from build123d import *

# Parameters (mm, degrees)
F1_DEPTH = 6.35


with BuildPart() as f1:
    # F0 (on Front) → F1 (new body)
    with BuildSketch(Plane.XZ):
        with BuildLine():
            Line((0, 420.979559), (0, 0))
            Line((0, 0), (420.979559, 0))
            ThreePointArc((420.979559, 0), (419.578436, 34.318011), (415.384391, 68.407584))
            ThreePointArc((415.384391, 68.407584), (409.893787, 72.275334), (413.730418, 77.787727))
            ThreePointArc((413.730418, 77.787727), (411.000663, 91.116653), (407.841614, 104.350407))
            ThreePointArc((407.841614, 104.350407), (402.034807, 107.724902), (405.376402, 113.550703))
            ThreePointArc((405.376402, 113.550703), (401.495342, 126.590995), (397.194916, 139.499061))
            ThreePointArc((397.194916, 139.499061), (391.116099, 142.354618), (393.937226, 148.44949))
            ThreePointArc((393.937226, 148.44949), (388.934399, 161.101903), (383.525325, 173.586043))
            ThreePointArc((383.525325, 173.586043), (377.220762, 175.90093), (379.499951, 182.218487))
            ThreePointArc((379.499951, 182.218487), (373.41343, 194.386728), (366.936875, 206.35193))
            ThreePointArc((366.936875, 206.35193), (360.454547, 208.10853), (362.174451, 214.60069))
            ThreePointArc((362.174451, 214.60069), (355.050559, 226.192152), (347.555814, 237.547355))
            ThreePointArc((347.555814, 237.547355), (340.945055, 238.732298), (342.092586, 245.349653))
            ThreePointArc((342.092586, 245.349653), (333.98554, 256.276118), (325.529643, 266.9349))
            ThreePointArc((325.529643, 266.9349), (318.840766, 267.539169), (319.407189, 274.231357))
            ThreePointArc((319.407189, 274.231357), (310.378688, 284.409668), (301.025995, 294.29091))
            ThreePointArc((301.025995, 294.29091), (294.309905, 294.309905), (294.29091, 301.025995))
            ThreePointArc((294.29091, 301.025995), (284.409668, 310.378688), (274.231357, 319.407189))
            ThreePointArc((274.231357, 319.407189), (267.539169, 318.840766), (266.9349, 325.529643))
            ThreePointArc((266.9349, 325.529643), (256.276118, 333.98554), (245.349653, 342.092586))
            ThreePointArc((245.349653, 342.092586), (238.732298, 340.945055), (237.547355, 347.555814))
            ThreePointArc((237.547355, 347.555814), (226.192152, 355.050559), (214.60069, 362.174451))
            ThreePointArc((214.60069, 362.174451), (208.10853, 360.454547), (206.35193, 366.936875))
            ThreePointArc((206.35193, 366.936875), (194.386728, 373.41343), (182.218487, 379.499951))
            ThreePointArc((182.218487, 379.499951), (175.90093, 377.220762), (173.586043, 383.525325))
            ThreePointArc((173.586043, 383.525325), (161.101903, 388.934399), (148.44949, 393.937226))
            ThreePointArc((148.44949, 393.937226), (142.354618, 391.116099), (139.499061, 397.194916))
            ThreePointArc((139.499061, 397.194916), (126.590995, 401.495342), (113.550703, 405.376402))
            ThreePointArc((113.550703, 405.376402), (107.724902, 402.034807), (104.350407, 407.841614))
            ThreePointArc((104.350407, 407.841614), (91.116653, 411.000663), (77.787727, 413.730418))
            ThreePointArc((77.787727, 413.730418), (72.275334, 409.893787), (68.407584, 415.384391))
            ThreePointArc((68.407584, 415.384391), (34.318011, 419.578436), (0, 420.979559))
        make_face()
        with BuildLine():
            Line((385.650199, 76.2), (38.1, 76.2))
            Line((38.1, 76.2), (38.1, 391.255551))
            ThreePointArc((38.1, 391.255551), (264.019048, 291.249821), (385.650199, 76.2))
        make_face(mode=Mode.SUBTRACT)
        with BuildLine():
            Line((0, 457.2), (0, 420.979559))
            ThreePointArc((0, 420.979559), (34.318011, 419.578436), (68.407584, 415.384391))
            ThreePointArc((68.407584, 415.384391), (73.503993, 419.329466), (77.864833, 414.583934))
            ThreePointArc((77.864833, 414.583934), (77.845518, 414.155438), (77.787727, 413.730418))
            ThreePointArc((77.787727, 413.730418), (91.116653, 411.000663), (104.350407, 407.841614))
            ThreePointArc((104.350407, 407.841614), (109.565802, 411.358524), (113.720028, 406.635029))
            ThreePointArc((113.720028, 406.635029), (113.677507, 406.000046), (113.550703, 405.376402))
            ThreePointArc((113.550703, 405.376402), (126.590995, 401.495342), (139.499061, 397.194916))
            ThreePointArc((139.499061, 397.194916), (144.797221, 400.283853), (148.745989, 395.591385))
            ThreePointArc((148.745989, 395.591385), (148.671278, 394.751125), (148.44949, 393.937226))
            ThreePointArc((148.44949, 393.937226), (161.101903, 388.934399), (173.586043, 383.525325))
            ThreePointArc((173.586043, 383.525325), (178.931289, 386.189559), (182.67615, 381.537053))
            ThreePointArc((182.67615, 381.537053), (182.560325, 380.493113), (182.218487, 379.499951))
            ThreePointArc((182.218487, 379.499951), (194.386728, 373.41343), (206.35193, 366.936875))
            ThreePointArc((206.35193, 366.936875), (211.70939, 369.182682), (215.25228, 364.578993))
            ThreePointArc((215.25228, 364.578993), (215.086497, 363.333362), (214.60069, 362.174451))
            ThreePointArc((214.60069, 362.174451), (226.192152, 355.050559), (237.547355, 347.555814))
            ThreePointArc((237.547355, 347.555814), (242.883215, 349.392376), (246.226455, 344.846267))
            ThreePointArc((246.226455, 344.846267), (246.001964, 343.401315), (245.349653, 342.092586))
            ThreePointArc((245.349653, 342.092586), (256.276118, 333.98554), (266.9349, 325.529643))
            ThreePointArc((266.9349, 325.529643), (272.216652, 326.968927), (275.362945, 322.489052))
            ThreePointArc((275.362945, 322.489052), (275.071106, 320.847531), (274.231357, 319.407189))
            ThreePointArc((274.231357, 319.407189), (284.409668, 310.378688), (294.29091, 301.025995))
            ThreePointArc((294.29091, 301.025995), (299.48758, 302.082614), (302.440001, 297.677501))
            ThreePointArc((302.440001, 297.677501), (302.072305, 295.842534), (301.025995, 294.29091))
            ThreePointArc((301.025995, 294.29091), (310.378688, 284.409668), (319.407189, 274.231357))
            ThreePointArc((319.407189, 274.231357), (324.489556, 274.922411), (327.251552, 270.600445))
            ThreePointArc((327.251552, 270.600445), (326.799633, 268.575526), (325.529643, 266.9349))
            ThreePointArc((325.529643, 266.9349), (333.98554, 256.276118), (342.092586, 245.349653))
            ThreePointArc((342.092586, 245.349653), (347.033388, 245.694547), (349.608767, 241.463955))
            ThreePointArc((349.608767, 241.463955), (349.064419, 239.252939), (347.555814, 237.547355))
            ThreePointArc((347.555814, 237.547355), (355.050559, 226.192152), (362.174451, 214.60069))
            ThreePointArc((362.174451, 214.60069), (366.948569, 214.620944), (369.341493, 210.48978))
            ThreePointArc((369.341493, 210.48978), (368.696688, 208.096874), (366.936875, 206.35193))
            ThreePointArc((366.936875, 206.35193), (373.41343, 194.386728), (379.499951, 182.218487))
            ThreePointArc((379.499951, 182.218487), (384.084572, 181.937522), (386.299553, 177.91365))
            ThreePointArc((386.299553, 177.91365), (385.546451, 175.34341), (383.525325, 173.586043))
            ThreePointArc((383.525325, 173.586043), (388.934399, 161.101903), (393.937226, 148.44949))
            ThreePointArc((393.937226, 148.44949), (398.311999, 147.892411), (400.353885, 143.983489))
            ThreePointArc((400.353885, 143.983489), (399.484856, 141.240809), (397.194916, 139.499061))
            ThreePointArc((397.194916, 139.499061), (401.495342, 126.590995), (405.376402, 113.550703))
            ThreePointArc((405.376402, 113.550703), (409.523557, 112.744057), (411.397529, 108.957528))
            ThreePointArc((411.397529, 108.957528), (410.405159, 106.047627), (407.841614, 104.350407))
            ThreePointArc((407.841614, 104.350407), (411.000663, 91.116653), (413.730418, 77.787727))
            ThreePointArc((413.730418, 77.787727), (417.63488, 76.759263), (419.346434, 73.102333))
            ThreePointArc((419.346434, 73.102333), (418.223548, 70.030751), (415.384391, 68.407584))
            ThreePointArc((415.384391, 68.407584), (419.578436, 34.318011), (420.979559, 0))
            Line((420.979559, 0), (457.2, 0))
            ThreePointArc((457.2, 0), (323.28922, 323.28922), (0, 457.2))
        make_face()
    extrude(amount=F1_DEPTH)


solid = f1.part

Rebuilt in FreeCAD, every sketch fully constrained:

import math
import FreeCAD as App
import Part
import Sketcher

V = App.Vector
Q = App.Units.Quantity

doc = App.newDocument("Part")
params = doc.addObject("Spreadsheet::Sheet", "Params")
for row, (alias, value) in enumerate([
    ("sketch1_radius", "18 in"),
    ("sketch1_radius2", "0.1875 in"),
    ("sketch1_radius3", "0.1875 in"),
    ("sketch1_radius4", "0.1874999 in"),
    ("sketch1_radius5", "0.1875 in"),
    ("pad1_length", "0.25 in"),
], start=1):
    params.set(f"A{row}", alias)
    params.set(f"B{row}", "=" + value)
    params.setAlias(f"B{row}", alias)

body = doc.addObject("PartDesign::Body", "Body")

# Sketch on XZ plane
sketch1 = body.newObject("Sketcher::SketchObject", "Sketch")
sketch1.AttachmentSupport = (doc.getObject("XZ_Plane"), [""])
sketch1.MapMode = "FlatFace"
sketch1.addGeometry([
    Part.LineSegment(V(0, 0, 0), V(457.2, 0, 0)),  # 0
    Part.ArcOfCircle(Part.Circle(V(-0.000001, -0.000001, 0), V(0, 0, 1), 457.200001), math.radians(0), math.radians(90)),  # 1
    Part.LineSegment(V(0, 457.2, 0), V(0, 0, 0)),  # 2
    Part.ArcOfCircle(Part.Circle(V(73.102333, 414.583934, 0), V(0, 0, 1), 4.7625), math.radians(170.324082), math.radians(349.675909)),  # 3
    Part.ArcOfCircle(Part.Circle(V(73.102333, 414.583934, 0), V(0, 0, 1), 4.7625), math.radians(-0.000002), math.radians(170.324089)),  # 4
    Part.ArcOfCircle(Part.Circle(V(73.102498, 414.583919, 0), V(0, 0, 1), 4.762335), math.radians(-10.324272), math.radians(0.000181)),  # 5
    Part.ArcOfCircle(Part.Circle(V(414.583934, 73.102333, 0), V(0, 0, 1), 4.7625), math.radians(100.324091), math.radians(279.675918)),  # 6
    Part.ArcOfCircle(Part.Circle(V(414.583934, 73.102333, 0), V(0, 0, 1), 4.7625), math.radians(-0.000006), math.radians(100.324101)),  # 7
    Part.ArcOfCircle(Part.Circle(V(414.583935, 73.102333, 0), V(0, 0, 1), 4.762499), math.radians(-80.324102), math.radians(0.000006)),  # 8
    Part.ArcOfCircle(Part.Circle(V(108.957527, 406.635029, 0), V(0, 0, 1), 4.7625), math.radians(165.324089), math.radians(344.675909)),  # 9
    Part.ArcOfCircle(Part.Circle(V(108.957528, 406.635028, 0), V(0, 0, 1), 4.7625), math.radians(0.000009), math.radians(165.324085)),  # 10
    Part.ArcOfCircle(Part.Circle(V(108.957561, 406.635028, 0), V(0, 0, 1), 4.762467), math.radians(-15.324185), math.radians(0.000016)),  # 11
    Part.ArcOfCircle(Part.Circle(V(406.635029, 108.957527, 0), V(0, 0, 1), 4.7625), math.radians(105.324091), math.radians(284.675911)),  # 12
    Part.ArcOfCircle(Part.Circle(V(406.635028, 108.957526, 0), V(0, 0, 1), 4.762501), math.radians(0.00002), math.radians(105.324083)),  # 13
    Part.ArcOfCircle(Part.Circle(V(406.635027, 108.957529, 0), V(0, 0, 1), 4.762502), math.radians(-75.324073), math.radians(-0.000013)),  # 14
    Part.ArcOfCircle(Part.Circle(V(143.983489, 395.591385, 0), V(0, 0, 1), 4.7625), math.radians(160.324089), math.radians(339.675908)),  # 15
    Part.ArcOfCircle(Part.Circle(V(143.983489, 395.591386, 0), V(0, 0, 1), 4.7625), math.radians(-0.000014), math.radians(160.324102)),  # 16
    Part.ArcOfCircle(Part.Circle(V(143.983463, 395.59139, 0), V(0, 0, 1), 4.762526), math.radians(-20.324031), math.radians(-0.000055)),  # 17
    Part.ArcOfCircle(Part.Circle(V(395.591385, 143.983489, 0), V(0, 0, 1), 4.7625), math.radians(110.324092), math.radians(289.675911)),  # 18
    Part.ArcOfCircle(Part.Circle(V(395.591386, 143.98349, 0), V(0, 0, 1), 4.762499), math.radians(-0.000013), math.radians(110.324103)),  # 19
    Part.ArcOfCircle(Part.Circle(V(395.591387, 143.983488, 0), V(0, 0, 1), 4.762498), math.radians(-70.324103), math.radians(0.000015)),  # 20
    Part.ArcOfCircle(Part.Circle(V(177.91365, 381.537053, 0), V(0, 0, 1), 4.7625), math.radians(155.324095), math.radians(334.675913)),  # 21
    Part.ArcOfCircle(Part.Circle(V(177.91365, 381.537052, 0), V(0, 0, 1), 4.7625), math.radians(0.000009), math.radians(155.324089)),  # 22
    Part.ArcOfCircle(Part.Circle(V(177.913621, 381.53706, 0), V(0, 0, 1), 4.762529), math.radians(-25.324012), math.radians(-0.000079)),  # 23
    Part.ArcOfCircle(Part.Circle(V(381.537053, 177.91365, 0), V(0, 0, 1), 4.7625), math.radians(115.324087), math.radians(294.675905)),  # 24
    Part.ArcOfCircle(Part.Circle(V(381.537052, 177.913649, 0), V(0, 0, 1), 4.762501), math.radians(0.000017), math.radians(115.324074)),  # 25
    Part.ArcOfCircle(Part.Circle(V(381.537052, 177.91365, 0), V(0, 0, 1), 4.762501), math.radians(-65.324092), math.radians(-0.000003)),  # 26
    Part.ArcOfCircle(Part.Circle(V(210.48978, 364.578993, 0), V(0, 0, 1), 4.7625), math.radians(150.324098), math.radians(329.6759)),  # 27
    Part.ArcOfCircle(Part.Circle(V(210.48978, 364.578992, 0), V(0, 0, 1), 4.7625), math.radians(0.000011), math.radians(150.324085)),  # 28
    Part.ArcOfCircle(Part.Circle(V(210.489777, 364.578994, 0), V(0, 0, 1), 4.762503), math.radians(-30.324097), math.radians(-0.000016)),  # 29
    Part.ArcOfCircle(Part.Circle(V(364.578993, 210.48978, 0), V(0, 0, 1), 4.7625), math.radians(120.3241), math.radians(299.675902)),  # 30
    Part.ArcOfCircle(Part.Circle(V(364.578993, 210.48978, 0), V(0, 0, 1), 4.7625), math.radians(-0.000003), math.radians(120.324105)),  # 31
    Part.ArcOfCircle(Part.Circle(V(364.578995, 210.489778, 0), V(0, 0, 1), 4.762498), math.radians(-60.324108), math.radians(0.000018)),  # 32
    Part.ArcOfCircle(Part.Circle(V(241.463955, 344.846267, 0), V(0, 0, 1), 4.7625), math.radians(145.324087), math.radians(324.675911)),  # 33
    Part.ArcOfCircle(Part.Circle(V(241.463955, 344.846267, 0), V(0, 0, 1), 4.7625), math.radians(-0.000003), math.radians(145.324094)),  # 34
    Part.ArcOfCircle(Part.Circle(V(241.463965, 344.846263, 0), V(0, 0, 1), 4.76249), math.radians(-35.324126), math.radians(0.000043)),  # 35
    Part.ArcOfCircle(Part.Circle(V(344.846267, 241.463955, 0), V(0, 0, 1), 4.7625), math.radians(125.324089), math.radians(304.675913)),  # 36
    Part.ArcOfCircle(Part.Circle(V(344.846267, 241.463955, 0), V(0, 0, 1), 4.7625), math.radians(0), math.radians(125.324089)),  # 37
    Part.ArcOfCircle(Part.Circle(V(344.846263, 241.463958, 0), V(0, 0, 1), 4.762504), math.radians(-55.324068), math.radians(-0.000034)),  # 38
    Part.ArcOfCircle(Part.Circle(V(270.600445, 322.489053, 0), V(0, 0, 1), 4.7625), math.radians(140.324103), math.radians(319.675901)),  # 39
    Part.ArcOfCircle(Part.Circle(V(270.600444, 322.489051, 0), V(0, 0, 1), 4.762501), math.radians(0.000007), math.radians(140.324085)),  # 40
    Part.ArcOfCircle(Part.Circle(V(270.600441, 322.489054, 0), V(0, 0, 1), 4.762504), math.radians(-40.324079), math.radians(-0.000029)),  # 41
    Part.ArcOfCircle(Part.Circle(V(322.489053, 270.600445, 0), V(0, 0, 1), 4.7625), math.radians(130.324099), math.radians(309.675897)),  # 42
    Part.ArcOfCircle(Part.Circle(V(322.489052, 270.600445, 0), V(0, 0, 1), 4.7625), math.radians(-0.000004), math.radians(130.324098)),  # 43
    Part.ArcOfCircle(Part.Circle(V(322.489047, 270.600446, 0), V(0, 0, 1), 4.762505), math.radians(-50.32406), math.radians(-0.000015)),  # 44
    Part.ArcOfCircle(Part.Circle(V(297.677501, 297.677501, 0), V(0, 0, 1), 4.7625), math.radians(135.324096), math.radians(314.675904)),  # 45
    Part.ArcOfCircle(Part.Circle(V(297.677501, 297.677501, 0), V(0, 0, 1), 4.7625), math.radians(0.000002), math.radians(135.324085)),  # 46
    Part.ArcOfCircle(Part.Circle(V(297.677498, 297.677502, 0), V(0, 0, 1), 4.762503), math.radians(-45.324068), math.radians(-0.000008)),  # 47
    Part.ArcOfCircle(Part.Circle(V(-0.000001, -0.000001, 0), V(0, 0, 1), 393.106241), math.radians(11.17701), math.radians(84.438141)),  # 48
    Part.LineSegment(V(385.650199, 76.2, 0), V(38.1, 76.2, 0)),  # 49
    Part.LineSegment(V(38.1, 76.2, 0), V(38.1, 391.255551, 0)),  # 50
], False)
sketch1.addConstraint([
    Sketcher.Constraint("Coincident", 0, 2, 1, 1),
    Sketcher.Constraint("Coincident", 1, 2, 2, 1),
    Sketcher.Constraint("Coincident", 2, 2, 0, 1),
    Sketcher.Constraint("Coincident", 3, 1, 4, 2),
    Sketcher.Constraint("Coincident", 4, 1, 5, 2),
    Sketcher.Constraint("Coincident", 5, 1, 3, 2),
    Sketcher.Constraint("Coincident", 6, 1, 7, 2),
    Sketcher.Constraint("Coincident", 7, 1, 8, 2),
    Sketcher.Constraint("Coincident", 8, 1, 6, 2),
    Sketcher.Constraint("Coincident", 9, 1, 10, 2),
    Sketcher.Constraint("Coincident", 10, 1, 11, 2),
    Sketcher.Constraint("Coincident", 11, 1, 9, 2),
    Sketcher.Constraint("Coincident", 12, 1, 13, 2),
    Sketcher.Constraint("Coincident", 13, 1, 14, 2),
    Sketcher.Constraint("Coincident", 14, 1, 12, 2),
    Sketcher.Constraint("Coincident", 15, 1, 16, 2),
    Sketcher.Constraint("Coincident", 16, 1, 17, 2),
    Sketcher.Constraint("Coincident", 17, 1, 15, 2),
    Sketcher.Constraint("Coincident", 18, 1, 19, 2),
    Sketcher.Constraint("Coincident", 19, 1, 20, 2),
    Sketcher.Constraint("Coincident", 20, 1, 18, 2),
    Sketcher.Constraint("Coincident", 21, 1, 22, 2),
    Sketcher.Constraint("Coincident", 22, 1, 23, 2),
    Sketcher.Constraint("Coincident", 23, 1, 21, 2),
    Sketcher.Constraint("Coincident", 24, 1, 25, 2),
    Sketcher.Constraint("Coincident", 25, 1, 26, 2),
    Sketcher.Constraint("Coincident", 26, 1, 24, 2),
    Sketcher.Constraint("Coincident", 27, 1, 28, 2),
    Sketcher.Constraint("Coincident", 28, 1, 29, 2),
    Sketcher.Constraint("Coincident", 29, 1, 27, 2),
    Sketcher.Constraint("Coincident", 30, 1, 31, 2),
    Sketcher.Constraint("Coincident", 31, 1, 32, 2),
    Sketcher.Constraint("Coincident", 32, 1, 30, 2),
    Sketcher.Constraint("Coincident", 33, 1, 34, 2),
    Sketcher.Constraint("Coincident", 34, 1, 35, 2),
    Sketcher.Constraint("Coincident", 35, 1, 33, 2),
    Sketcher.Constraint("Coincident", 36, 1, 37, 2),
    Sketcher.Constraint("Coincident", 37, 1, 38, 2),
    Sketcher.Constraint("Coincident", 38, 1, 36, 2),
    Sketcher.Constraint("Coincident", 39, 1, 40, 2),
    Sketcher.Constraint("Coincident", 40, 1, 41, 2),
    Sketcher.Constraint("Coincident", 41, 1, 39, 2),
    Sketcher.Constraint("Coincident", 42, 1, 43, 2),
    Sketcher.Constraint("Coincident", 43, 1, 44, 2),
    Sketcher.Constraint("Coincident", 44, 1, 42, 2),
    Sketcher.Constraint("Coincident", 45, 1, 46, 2),
    Sketcher.Constraint("Coincident", 46, 1, 47, 2),
    Sketcher.Constraint("Coincident", 47, 1, 45, 2),
    Sketcher.Constraint("Coincident", 48, 1, 49, 1),
    Sketcher.Constraint("Coincident", 49, 2, 50, 1),
    Sketcher.Constraint("Coincident", 50, 2, 48, 2),
    Sketcher.Constraint("Horizontal", 0),
    Sketcher.Constraint("Vertical", 2),
    Sketcher.Constraint("Horizontal", 49),
    Sketcher.Constraint("Vertical", 50),
    Sketcher.Constraint("Coincident", 1, 3, -1, 1),
    Sketcher.Constraint("Coincident", 48, 3, -1, 1),
    Sketcher.Constraint("Coincident", 2, 2, -1, 1),
    Sketcher.Constraint("Coincident", 4, 3, 3, 3),
    Sketcher.Constraint("Coincident", 7, 3, 6, 3),
    Sketcher.Constraint("Coincident", 10, 3, 9, 3),
    Sketcher.Constraint("Coincident", 13, 3, 12, 3),
    Sketcher.Constraint("Coincident", 16, 3, 15, 3),
    Sketcher.Constraint("Coincident", 19, 3, 18, 3),
    Sketcher.Constraint("Coincident", 22, 3, 21, 3),
    Sketcher.Constraint("Coincident", 25, 3, 24, 3),
    Sketcher.Constraint("Coincident", 28, 3, 27, 3),
    Sketcher.Constraint("Coincident", 31, 3, 30, 3),
    Sketcher.Constraint("Coincident", 34, 3, 33, 3),
    Sketcher.Constraint("Coincident", 37, 3, 36, 3),
    Sketcher.Constraint("Coincident", 40, 3, 39, 3),
    Sketcher.Constraint("Coincident", 43, 3, 42, 3),
    Sketcher.Constraint("Coincident", 46, 3, 45, 3),
    Sketcher.Constraint("Radius", 1, Q("18 in")),
    Sketcher.Constraint("DistanceY", -1, 1, 49, 2, Q("3 in")),
    Sketcher.Constraint("Radius", 3, Q("0.1875 in")),
    Sketcher.Constraint("Radius", 6, Q("0.1875 in")),
    Sketcher.Constraint("Radius", 8, Q("0.1874999 in")),
    Sketcher.Constraint("Radius", 9, Q("0.1875 in")),
    Sketcher.Constraint("Radius", 12, Q("0.1875 in")),
    Sketcher.Constraint("Radius", 14, Q("0.1875001 in")),
    Sketcher.Constraint("Radius", 15, Q("0.1875 in")),
    Sketcher.Constraint("Radius", 18, Q("0.1875 in")),
    Sketcher.Constraint("Radius", 20, Q("0.1874999 in")),
    Sketcher.Constraint("Radius", 21, Q("0.1875 in")),
    Sketcher.Constraint("Radius", 24, Q("0.1875 in")),
    Sketcher.Constraint("Radius", 26, Q("0.1875 in")),
    Sketcher.Constraint("Radius", 27, Q("0.1875 in")),
    Sketcher.Constraint("Radius", 29, Q("0.1875001 in")),
    Sketcher.Constraint("Radius", 30, Q("0.1875 in")),
    Sketcher.Constraint("Radius", 32, Q("0.1874999 in")),
    Sketcher.Constraint("Radius", 33, Q("0.1875 in")),
    Sketcher.Constraint("Radius", 36, Q("0.1875 in")),
    Sketcher.Constraint("Radius", 39, Q("0.1875 in")),
    Sketcher.Constraint("Radius", 42, Q("0.1875 in")),
    Sketcher.Constraint("Radius", 45, Q("0.1875 in")),
    Sketcher.Constraint("Radius", 47, Q("0.1875001 in")),
    Sketcher.Constraint("DistanceX", -1, 1, 49, 2, Q("1.5 in")),
    Sketcher.Constraint("Radius", 38, Q("0.1875002 in")),
    Sketcher.Constraint("Radius", 41, Q("0.1875002 in")),
    Sketcher.Constraint("Radius", 44, Q("0.1875002 in")),
    Sketcher.Constraint("Radius", 23, Q("4.762529 mm")),
    Sketcher.Constraint("Radius", 35, Q("4.76249 mm")),
    Sketcher.Constraint("Radius", 48, Q("393.106241 mm")),
    Sketcher.Constraint("DistanceX", -1, 1, 11, 1, Q("4.4705001 in")),
    Sketcher.Constraint("DistanceY", -1, 1, 12, 1, Q("4.4705001 in")),
    Sketcher.Constraint("Radius", 5, Q("4.762335 mm")),
    Sketcher.Constraint("Radius", 11, Q("4.762467 mm")),
    Sketcher.Constraint("Radius", 17, Q("4.762526 mm")),
    Sketcher.Constraint("DistanceX", -1, 1, 45, 3, Q("297.677501 mm")),
    Sketcher.Constraint("DistanceY", -1, 1, 45, 3, Q("297.677501 mm")),
    Sketcher.Constraint("DistanceY", -1, 1, 11, 1, Q("405.376402 mm")),
    Sketcher.Constraint("DistanceX", -1, 1, 39, 1, Q("266.9349 mm")),
    Sketcher.Constraint("DistanceY", -1, 1, 44, 1, Q("266.9349 mm")),
    Sketcher.Constraint("DistanceY", -1, 1, 46, 1, Q("297.677501 mm")),
    Sketcher.Constraint("DistanceY", -1, 1, 5, 3, Q("414.583919 mm")),
    Sketcher.Constraint("DistanceY", -1, 1, 9, 3, Q("406.635029 mm")),
    Sketcher.Constraint("DistanceX", -1, 1, 12, 3, Q("406.635029 mm")),
    Sketcher.Constraint("DistanceY", -1, 1, 14, 3, Q("108.957529 mm")),
    Sketcher.Constraint("DistanceX", -1, 1, 15, 3, Q("143.983489 mm")),
    Sketcher.Constraint("DistanceY", -1, 1, 17, 3, Q("395.59139 mm")),
    Sketcher.Constraint("DistanceY", -1, 1, 18, 3, Q("143.983489 mm")),
    Sketcher.Constraint("DistanceX", -1, 1, 21, 3, Q("177.91365 mm")),
    Sketcher.Constraint("DistanceY", -1, 1, 23, 3, Q("381.53706 mm")),
    Sketcher.Constraint("DistanceY", -1, 1, 24, 3, Q("177.91365 mm")),
    Sketcher.Constraint("DistanceX", -1, 1, 27, 3, Q("210.48978 mm")),
    Sketcher.Constraint("DistanceY", -1, 1, 30, 3, Q("210.48978 mm")),
    Sketcher.Constraint("DistanceY", -1, 1, 40, 3, Q("322.489051 mm")),
    Sketcher.Constraint("DistanceX", -1, 1, 41, 3, Q("270.600441 mm")),
    Sketcher.Constraint("DistanceY", -1, 1, 3, 1, Q("415.384391 mm")),
    Sketcher.Constraint("DistanceY", -1, 1, 5, 1, Q("413.730418 mm")),
    Sketcher.Constraint("DistanceX", -1, 1, 6, 1, Q("413.730418 mm")),
    Sketcher.Constraint("DistanceX", -1, 1, 8, 1, Q("415.384391 mm")),
    Sketcher.Constraint("DistanceY", -1, 1, 10, 1, Q("406.635029 mm")),
    Sketcher.Constraint("DistanceX", -1, 1, 15, 1, Q("139.499061 mm")),
    Sketcher.Constraint("DistanceX", -1, 1, 17, 1, Q("148.44949 mm")),
    Sketcher.Constraint("DistanceY", -1, 1, 18, 1, Q("148.44949 mm")),
    Sketcher.Constraint("DistanceY", -1, 1, 19, 1, Q("143.983489 mm")),
    Sketcher.Constraint("DistanceY", -1, 1, 20, 1, Q("139.499061 mm")),
    Sketcher.Constraint("DistanceY", -1, 1, 23, 1, Q("379.499951 mm")),
    Sketcher.Constraint("DistanceX", -1, 1, 24, 1, Q("379.499951 mm")),
    Sketcher.Constraint("DistanceY", -1, 1, 25, 1, Q("177.91365 mm")),
    Sketcher.Constraint("DistanceX", -1, 1, 27, 1, Q("206.35193 mm")),
    Sketcher.Constraint("DistanceX", -1, 1, 29, 1, Q("214.60069 mm")),
    Sketcher.Constraint("DistanceY", -1, 1, 29, 1, Q("362.174451 mm")),
    Sketcher.Constraint("DistanceX", -1, 1, 30, 1, Q("362.174451 mm")),
    Sketcher.Constraint("DistanceY", -1, 1, 30, 1, Q("214.60069 mm")),
    Sketcher.Constraint("DistanceY", -1, 1, 31, 1, Q("210.48978 mm")),
    Sketcher.Constraint("DistanceY", -1, 1, 32, 1, Q("206.35193 mm")),
    Sketcher.Constraint("DistanceY", -1, 1, 40, 1, Q("322.489052 mm")),
    Sketcher.Constraint("DistanceY", -1, 1, 41, 1, Q("319.407189 mm")),
    Sketcher.Constraint("DistanceX", -1, 1, 42, 1, Q("319.407189 mm")),
    Sketcher.Constraint("DistanceX", -1, 1, 43, 1, Q("327.251552 mm")),
    Sketcher.Constraint("DistanceX", -1, 1, 45, 1, Q("294.29091 mm")),
    Sketcher.Constraint("DistanceY", -1, 1, 47, 1, Q("294.29091 mm")),
    Sketcher.Constraint("DistanceX", -1, 1, 3, 3, Q("73.102333 mm")),
    Sketcher.Constraint("DistanceX", -1, 1, 6, 3, Q("414.583934 mm")),
    Sketcher.Constraint("DistanceY", -1, 1, 6, 3, Q("73.102333 mm")),
    Sketcher.Constraint("DistanceX", -1, 1, 18, 3, Q("395.591385 mm")),
    Sketcher.Constraint("DistanceX", -1, 1, 24, 3, Q("381.537053 mm")),
    Sketcher.Constraint("DistanceX", -1, 1, 33, 3, Q("241.463955 mm")),
    Sketcher.Constraint("DistanceY", -1, 1, 33, 3, Q("344.846267 mm")),
    Sketcher.Constraint("DistanceX", -1, 1, 36, 3, Q("344.846267 mm")),
    Sketcher.Constraint("DistanceY", -1, 1, 36, 3, Q("241.463955 mm")),
    Sketcher.Constraint("DistanceY", -1, 1, 42, 3, Q("270.600445 mm")),
    Sketcher.Constraint("DistanceY", -1, 1, 4, 1, Q("414.583934 mm")),
    Sketcher.Constraint("DistanceY", -1, 1, 7, 1, Q("73.102333 mm")),
    Sketcher.Constraint("DistanceX", -1, 1, 9, 1, Q("104.350407 mm")),
    Sketcher.Constraint("DistanceY", -1, 1, 13, 1, Q("108.957528 mm")),
    Sketcher.Constraint("DistanceX", -1, 1, 14, 1, Q("407.841614 mm")),
    Sketcher.Constraint("DistanceY", -1, 1, 16, 1, Q("395.591385 mm")),
    Sketcher.Constraint("DistanceX", -1, 1, 21, 1, Q("173.586043 mm")),
    Sketcher.Constraint("DistanceY", -1, 1, 22, 1, Q("381.537053 mm")),
    Sketcher.Constraint("DistanceX", -1, 1, 26, 1, Q("383.525325 mm")),
    Sketcher.Constraint("DistanceY", -1, 1, 28, 1, Q("364.578993 mm")),
    Sketcher.Constraint("DistanceX", -1, 1, 33, 1, Q("237.547355 mm")),
    Sketcher.Constraint("DistanceY", -1, 1, 34, 1, Q("344.846267 mm")),
    Sketcher.Constraint("DistanceX", -1, 1, 35, 1, Q("245.349653 mm")),
    Sketcher.Constraint("DistanceX", -1, 1, 36, 1, Q("342.092586 mm")),
    Sketcher.Constraint("DistanceY", -1, 1, 37, 1, Q("241.463955 mm")),
    Sketcher.Constraint("DistanceX", -1, 1, 38, 1, Q("347.555814 mm")),
    Sketcher.Constraint("DistanceY", -1, 1, 43, 1, Q("270.600445 mm")),
])
sketch1.setExpression("Constraints[73]", "Params.sketch1_radius")
sketch1.setExpression("Constraints[75]", "Params.sketch1_radius2")
sketch1.setExpression("Constraints[76]", "Params.sketch1_radius3")
sketch1.setExpression("Constraints[77]", "Params.sketch1_radius4")
sketch1.setExpression("Constraints[78]", "Params.sketch1_radius5")
pad1 = body.newObject("PartDesign::Pad", "Pad")
pad1.Profile = sketch1
pad1.setExpression("Length", "Params.pad1_length")

doc.recompute()
